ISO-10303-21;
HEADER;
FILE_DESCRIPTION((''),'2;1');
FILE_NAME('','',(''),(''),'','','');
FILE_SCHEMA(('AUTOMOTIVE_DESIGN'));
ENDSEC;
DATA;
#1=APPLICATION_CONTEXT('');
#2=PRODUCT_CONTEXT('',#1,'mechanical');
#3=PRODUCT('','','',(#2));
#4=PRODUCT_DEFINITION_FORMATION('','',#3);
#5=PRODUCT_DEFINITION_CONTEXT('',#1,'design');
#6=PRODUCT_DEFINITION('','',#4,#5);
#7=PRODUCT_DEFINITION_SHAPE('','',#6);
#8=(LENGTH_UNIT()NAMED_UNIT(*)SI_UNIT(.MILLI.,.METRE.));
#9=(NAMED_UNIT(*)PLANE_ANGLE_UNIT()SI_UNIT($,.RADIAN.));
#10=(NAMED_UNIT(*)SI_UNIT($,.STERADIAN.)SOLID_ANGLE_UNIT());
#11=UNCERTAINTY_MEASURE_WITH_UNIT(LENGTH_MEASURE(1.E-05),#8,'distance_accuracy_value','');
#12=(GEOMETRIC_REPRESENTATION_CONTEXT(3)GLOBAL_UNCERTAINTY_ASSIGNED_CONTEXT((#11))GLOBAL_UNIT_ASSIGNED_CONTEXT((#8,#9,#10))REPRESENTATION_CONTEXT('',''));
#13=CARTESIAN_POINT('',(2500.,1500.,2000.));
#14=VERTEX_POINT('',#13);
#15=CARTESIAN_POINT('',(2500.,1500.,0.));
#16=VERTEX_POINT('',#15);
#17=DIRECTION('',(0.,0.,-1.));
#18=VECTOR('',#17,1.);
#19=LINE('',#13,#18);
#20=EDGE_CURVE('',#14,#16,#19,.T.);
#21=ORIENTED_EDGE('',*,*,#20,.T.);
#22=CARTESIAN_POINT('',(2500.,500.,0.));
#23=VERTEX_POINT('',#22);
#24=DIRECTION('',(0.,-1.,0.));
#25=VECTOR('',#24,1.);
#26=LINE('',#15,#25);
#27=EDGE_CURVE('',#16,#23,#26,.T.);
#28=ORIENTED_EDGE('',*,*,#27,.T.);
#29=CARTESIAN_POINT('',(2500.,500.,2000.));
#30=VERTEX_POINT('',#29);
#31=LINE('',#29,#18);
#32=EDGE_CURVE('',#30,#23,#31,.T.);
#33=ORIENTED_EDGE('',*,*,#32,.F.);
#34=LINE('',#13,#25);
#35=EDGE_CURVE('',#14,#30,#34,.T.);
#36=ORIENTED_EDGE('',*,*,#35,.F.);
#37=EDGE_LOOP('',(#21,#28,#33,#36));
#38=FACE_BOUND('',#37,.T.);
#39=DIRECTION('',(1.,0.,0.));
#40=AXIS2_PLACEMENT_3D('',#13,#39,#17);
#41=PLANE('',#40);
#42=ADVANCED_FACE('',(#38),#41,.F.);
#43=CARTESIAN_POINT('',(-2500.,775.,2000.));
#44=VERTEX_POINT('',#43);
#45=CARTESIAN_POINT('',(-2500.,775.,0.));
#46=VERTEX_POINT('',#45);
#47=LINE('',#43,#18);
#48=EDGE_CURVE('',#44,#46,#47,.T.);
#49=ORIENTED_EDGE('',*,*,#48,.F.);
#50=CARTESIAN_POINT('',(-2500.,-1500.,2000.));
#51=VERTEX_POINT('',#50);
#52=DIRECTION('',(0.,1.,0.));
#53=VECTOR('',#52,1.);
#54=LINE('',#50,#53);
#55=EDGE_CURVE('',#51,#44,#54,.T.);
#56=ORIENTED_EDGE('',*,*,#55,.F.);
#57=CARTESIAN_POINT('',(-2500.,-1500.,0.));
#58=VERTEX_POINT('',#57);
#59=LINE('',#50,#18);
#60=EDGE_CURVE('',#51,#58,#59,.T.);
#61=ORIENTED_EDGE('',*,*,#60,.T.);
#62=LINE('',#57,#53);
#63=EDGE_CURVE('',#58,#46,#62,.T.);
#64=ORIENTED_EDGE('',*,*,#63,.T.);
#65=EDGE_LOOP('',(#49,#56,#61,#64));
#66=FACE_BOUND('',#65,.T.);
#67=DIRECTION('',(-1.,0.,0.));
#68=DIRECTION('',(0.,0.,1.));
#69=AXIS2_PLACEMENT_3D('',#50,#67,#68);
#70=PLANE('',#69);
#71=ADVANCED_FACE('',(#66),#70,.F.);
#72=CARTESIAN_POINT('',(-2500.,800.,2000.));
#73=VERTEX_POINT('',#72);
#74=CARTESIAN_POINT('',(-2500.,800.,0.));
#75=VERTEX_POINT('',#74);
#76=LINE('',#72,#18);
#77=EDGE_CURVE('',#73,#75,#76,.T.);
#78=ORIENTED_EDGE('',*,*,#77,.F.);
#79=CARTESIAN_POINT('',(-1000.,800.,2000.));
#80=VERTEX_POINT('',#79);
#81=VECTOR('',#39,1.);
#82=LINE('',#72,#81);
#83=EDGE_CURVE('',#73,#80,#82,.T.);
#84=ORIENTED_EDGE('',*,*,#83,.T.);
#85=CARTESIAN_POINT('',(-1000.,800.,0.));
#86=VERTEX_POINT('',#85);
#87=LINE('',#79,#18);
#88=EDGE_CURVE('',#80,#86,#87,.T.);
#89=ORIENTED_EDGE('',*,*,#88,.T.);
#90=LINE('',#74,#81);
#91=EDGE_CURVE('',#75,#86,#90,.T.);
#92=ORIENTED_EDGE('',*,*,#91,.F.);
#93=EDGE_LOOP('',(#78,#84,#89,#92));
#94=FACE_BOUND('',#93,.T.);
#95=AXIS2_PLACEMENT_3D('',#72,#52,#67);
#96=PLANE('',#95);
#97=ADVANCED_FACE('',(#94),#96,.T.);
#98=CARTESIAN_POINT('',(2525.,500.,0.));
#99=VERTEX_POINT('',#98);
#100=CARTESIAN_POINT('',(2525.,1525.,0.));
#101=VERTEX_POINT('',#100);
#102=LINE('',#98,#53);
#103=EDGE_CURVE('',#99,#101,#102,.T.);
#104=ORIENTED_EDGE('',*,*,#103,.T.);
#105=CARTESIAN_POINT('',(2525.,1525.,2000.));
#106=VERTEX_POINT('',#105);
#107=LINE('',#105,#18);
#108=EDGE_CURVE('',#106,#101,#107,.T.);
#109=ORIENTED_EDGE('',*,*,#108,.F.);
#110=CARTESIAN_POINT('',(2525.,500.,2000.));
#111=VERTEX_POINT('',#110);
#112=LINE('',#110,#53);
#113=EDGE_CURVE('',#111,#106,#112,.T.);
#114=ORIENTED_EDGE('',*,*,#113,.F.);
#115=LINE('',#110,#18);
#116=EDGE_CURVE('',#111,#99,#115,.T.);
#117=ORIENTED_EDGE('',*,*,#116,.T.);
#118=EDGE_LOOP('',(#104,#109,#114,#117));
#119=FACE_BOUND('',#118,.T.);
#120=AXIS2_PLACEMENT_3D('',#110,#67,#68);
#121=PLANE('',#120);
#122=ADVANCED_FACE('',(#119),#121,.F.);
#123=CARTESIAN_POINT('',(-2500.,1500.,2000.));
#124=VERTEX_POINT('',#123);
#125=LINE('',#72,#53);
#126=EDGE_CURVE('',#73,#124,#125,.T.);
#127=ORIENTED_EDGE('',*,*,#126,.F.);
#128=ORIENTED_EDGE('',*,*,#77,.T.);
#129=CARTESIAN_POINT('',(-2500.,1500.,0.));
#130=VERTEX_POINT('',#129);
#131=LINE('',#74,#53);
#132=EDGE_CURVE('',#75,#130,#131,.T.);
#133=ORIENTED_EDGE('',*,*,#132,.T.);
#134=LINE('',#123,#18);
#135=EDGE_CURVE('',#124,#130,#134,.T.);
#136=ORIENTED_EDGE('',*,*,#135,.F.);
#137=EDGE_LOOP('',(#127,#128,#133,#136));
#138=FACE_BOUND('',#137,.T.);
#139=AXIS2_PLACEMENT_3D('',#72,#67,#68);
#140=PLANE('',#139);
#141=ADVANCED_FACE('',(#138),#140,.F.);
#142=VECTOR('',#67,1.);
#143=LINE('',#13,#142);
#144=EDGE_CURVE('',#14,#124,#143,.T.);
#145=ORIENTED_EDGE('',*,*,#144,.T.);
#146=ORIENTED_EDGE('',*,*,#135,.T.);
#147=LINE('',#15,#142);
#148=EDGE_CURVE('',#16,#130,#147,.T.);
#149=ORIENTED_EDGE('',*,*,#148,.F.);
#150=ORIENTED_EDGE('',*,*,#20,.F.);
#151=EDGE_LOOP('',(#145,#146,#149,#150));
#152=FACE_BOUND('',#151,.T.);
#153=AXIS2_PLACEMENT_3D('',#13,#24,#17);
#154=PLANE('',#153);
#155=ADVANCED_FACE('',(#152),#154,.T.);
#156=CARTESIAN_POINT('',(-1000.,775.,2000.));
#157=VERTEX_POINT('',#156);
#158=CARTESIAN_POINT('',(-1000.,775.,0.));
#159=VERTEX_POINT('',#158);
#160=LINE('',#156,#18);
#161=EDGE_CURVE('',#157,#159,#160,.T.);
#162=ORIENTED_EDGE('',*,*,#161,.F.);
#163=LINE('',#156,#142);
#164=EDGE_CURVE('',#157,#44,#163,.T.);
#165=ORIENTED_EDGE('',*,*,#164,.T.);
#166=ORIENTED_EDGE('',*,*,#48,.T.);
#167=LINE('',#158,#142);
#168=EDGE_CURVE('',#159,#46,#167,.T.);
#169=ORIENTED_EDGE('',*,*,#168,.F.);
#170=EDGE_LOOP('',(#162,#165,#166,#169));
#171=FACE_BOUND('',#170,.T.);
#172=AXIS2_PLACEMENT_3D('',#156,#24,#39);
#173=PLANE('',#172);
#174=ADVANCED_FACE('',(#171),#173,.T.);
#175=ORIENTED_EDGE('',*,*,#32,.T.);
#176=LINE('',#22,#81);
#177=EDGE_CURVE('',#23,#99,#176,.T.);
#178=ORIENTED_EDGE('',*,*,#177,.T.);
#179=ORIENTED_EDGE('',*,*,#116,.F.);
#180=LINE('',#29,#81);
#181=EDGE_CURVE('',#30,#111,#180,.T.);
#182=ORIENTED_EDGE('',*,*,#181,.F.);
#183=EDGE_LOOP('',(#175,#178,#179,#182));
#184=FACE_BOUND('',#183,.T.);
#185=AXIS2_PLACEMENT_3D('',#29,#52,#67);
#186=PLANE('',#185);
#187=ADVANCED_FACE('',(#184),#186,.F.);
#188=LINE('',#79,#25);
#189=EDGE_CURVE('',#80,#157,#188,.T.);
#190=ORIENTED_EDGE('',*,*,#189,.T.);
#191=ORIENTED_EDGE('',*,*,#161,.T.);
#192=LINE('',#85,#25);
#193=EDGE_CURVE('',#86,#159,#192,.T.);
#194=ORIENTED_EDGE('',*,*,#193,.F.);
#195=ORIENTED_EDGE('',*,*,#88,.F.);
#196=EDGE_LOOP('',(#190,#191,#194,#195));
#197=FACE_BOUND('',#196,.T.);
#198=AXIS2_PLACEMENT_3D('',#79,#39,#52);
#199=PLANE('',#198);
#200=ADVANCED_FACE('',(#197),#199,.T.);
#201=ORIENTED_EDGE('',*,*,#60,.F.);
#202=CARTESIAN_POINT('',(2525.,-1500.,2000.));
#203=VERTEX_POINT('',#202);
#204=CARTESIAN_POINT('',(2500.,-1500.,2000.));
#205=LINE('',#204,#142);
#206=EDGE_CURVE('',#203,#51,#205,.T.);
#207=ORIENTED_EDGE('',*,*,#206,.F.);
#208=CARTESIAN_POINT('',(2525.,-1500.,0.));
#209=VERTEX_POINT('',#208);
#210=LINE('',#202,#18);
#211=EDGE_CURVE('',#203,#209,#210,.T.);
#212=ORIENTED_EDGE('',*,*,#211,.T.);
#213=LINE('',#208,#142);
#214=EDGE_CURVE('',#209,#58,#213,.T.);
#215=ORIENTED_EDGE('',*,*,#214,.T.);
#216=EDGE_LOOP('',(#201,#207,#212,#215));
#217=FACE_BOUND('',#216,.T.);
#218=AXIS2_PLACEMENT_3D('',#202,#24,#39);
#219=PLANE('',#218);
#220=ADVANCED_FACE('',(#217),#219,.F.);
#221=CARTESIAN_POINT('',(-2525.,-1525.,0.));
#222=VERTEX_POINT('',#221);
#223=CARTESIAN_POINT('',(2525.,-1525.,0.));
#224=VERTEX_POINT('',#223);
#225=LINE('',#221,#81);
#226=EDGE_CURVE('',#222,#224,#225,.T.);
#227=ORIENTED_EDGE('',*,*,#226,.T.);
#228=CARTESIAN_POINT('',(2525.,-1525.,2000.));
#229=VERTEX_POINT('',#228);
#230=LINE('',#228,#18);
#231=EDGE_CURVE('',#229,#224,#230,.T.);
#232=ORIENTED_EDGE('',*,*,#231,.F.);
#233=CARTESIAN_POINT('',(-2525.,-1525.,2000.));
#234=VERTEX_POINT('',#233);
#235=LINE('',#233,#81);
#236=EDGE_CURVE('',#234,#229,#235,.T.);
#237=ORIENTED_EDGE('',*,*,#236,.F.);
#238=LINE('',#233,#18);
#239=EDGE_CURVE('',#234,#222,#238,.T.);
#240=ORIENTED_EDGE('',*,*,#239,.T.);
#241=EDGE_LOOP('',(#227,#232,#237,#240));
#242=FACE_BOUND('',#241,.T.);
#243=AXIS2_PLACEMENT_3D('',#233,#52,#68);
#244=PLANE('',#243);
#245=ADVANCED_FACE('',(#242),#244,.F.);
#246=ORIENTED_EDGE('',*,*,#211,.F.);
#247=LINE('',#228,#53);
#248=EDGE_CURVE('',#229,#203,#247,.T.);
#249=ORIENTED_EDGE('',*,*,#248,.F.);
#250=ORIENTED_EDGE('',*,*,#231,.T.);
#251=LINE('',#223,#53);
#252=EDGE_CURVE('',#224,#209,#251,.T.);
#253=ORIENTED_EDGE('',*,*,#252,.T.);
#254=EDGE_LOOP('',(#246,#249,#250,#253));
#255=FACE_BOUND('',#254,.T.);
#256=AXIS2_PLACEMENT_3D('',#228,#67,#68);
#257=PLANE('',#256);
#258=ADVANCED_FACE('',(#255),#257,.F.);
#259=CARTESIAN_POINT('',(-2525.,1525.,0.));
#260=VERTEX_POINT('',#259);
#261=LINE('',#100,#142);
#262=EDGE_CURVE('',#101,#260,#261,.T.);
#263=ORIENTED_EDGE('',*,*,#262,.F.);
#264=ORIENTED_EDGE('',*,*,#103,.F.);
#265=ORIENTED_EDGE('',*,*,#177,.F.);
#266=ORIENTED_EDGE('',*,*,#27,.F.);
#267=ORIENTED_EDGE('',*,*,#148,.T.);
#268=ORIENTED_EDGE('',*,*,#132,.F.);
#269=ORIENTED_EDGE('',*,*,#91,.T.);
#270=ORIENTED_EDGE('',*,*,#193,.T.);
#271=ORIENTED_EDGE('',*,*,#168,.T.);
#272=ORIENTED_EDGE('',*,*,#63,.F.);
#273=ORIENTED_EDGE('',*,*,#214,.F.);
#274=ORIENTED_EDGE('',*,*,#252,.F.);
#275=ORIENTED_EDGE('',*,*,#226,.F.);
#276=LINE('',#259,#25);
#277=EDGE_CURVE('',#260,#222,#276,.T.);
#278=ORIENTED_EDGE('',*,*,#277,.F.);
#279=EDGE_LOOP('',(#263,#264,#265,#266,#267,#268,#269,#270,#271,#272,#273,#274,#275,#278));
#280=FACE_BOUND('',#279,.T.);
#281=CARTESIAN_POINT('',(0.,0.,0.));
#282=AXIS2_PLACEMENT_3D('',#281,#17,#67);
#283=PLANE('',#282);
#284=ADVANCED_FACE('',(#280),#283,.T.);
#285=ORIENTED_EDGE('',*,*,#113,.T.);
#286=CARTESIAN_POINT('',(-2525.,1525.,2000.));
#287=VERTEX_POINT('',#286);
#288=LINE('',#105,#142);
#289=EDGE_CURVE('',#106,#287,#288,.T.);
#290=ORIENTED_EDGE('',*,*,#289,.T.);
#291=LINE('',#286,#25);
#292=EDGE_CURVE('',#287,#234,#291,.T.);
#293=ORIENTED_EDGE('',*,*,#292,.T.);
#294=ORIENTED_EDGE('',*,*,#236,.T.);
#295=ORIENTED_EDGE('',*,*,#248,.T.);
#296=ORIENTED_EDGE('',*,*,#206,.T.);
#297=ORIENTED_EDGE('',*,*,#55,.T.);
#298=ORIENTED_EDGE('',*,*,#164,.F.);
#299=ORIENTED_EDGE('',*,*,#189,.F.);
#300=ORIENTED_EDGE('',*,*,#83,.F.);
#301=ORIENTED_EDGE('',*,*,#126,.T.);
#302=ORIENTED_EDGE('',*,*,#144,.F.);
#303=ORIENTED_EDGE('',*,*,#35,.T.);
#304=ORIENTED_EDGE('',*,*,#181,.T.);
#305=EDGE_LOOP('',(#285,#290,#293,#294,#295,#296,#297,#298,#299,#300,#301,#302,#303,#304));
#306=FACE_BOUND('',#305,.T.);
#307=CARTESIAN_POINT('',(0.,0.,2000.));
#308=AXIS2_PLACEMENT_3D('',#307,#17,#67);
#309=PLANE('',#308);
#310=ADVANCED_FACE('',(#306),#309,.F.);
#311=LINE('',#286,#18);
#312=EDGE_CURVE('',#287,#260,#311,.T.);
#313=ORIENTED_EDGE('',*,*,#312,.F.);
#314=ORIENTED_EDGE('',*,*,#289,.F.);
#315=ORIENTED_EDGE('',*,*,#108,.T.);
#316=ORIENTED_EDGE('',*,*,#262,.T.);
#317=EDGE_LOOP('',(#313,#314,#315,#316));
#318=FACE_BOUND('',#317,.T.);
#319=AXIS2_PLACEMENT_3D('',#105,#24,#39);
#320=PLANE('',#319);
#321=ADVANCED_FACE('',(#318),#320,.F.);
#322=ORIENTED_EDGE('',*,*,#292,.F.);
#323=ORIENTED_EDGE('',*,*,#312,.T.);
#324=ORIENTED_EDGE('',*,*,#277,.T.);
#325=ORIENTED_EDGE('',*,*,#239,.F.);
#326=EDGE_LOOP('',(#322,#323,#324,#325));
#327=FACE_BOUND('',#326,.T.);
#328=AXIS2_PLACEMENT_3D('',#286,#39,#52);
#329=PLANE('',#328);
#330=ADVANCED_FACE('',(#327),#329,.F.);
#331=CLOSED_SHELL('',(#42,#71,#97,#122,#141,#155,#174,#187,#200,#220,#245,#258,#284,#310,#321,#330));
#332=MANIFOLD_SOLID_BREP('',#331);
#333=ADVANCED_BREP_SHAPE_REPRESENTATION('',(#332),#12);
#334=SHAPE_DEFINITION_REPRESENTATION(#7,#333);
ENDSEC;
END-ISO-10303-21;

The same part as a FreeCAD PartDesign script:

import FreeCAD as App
import Part
import Sketcher

doc = App.newDocument("Part")
body = doc.addObject("PartDesign::Body", "Body")

# Sketch on XY plane
sketch1 = doc.addObject("Sketcher::SketchObject", "Sketch")
body.addObject(sketch1)
sketch1.AttachmentSupport = (doc.XY_Plane, [""])
sketch1.MapMode = "FlatFace"
sketch1.addGeometry([
    Part.LineSegment(App.Vector(-1000, 800, 0), App.Vector(-2500, 800, 0)),  # 0
    Part.LineSegment(App.Vector(-2500, 800, 0), App.Vector(-2500, 1500, 0)),  # 1
    Part.LineSegment(App.Vector(-2500, 1500, 0), App.Vector(2500, 1500, 0)),  # 2
    Part.LineSegment(App.Vector(2500, 1500, 0), App.Vector(2500, 500, 0)),  # 3
    Part.LineSegment(App.Vector(2500, 500, 0), App.Vector(2525, 500, 0)),  # 4
    Part.LineSegment(App.Vector(2525, 500, 0), App.Vector(2525, 1525, 0)),  # 5
    Part.LineSegment(App.Vector(2525, 1525, 0), App.Vector(-2525, 1525, 0)),  # 6
    Part.LineSegment(App.Vector(-2525, 1525, 0), App.Vector(-2525, -1525, 0)),  # 7
    Part.LineSegment(App.Vector(-2525, -1525, 0), App.Vector(2525, -1525, 0)),  # 8
    Part.LineSegment(App.Vector(2525, -1525, 0), App.Vector(2525, -1500, 0)),  # 9
    Part.LineSegment(App.Vector(2525, -1500, 0), App.Vector(-2500, -1500, 0)),  # 10
    Part.LineSegment(App.Vector(-2500, -1500, 0), App.Vector(-2500, 775, 0)),  # 11
    Part.LineSegment(App.Vector(-2500, 775, 0), App.Vector(-1000, 775, 0)),  # 12
    Part.LineSegment(App.Vector(-1000, 775, 0), App.Vector(-1000, 800, 0)),  # 13
], False)
sketch1.addConstraint([
    Sketcher.Constraint("Coincident", 0, 2, 1, 1),
    Sketcher.Constraint("Coincident", 1, 2, 2, 1),
    Sketcher.Constraint("Coincident", 2, 2, 3, 1),
    Sketcher.Constraint("Coincident", 3, 2, 4, 1),
    Sketcher.Constraint("Coincident", 4, 2, 5, 1),
    Sketcher.Constraint("Coincident", 5, 2, 6, 1),
    Sketcher.Constraint("Coincident", 6, 2, 7, 1),
    Sketcher.Constraint("Coincident", 7, 2, 8, 1),
    Sketcher.Constraint("Coincident", 8, 2, 9, 1),
    Sketcher.Constraint("Coincident", 9, 2, 10, 1),
    Sketcher.Constraint("Coincident", 10, 2, 11, 1),
    Sketcher.Constraint("Coincident", 11, 2, 12, 1),
    Sketcher.Constraint("Coincident", 12, 2, 13, 1),
    Sketcher.Constraint("Coincident", 13, 2, 0, 1),
    Sketcher.Constraint("Horizontal", 0),
    Sketcher.Constraint("Vertical", 1),
    Sketcher.Constraint("Horizontal", 2),
    Sketcher.Constraint("Vertical", 3),
    Sketcher.Constraint("Horizontal", 4),
    Sketcher.Constraint("Vertical", 5),
    Sketcher.Constraint("Horizontal", 6),
    Sketcher.Constraint("Vertical", 7),
    Sketcher.Constraint("Horizontal", 8),
    Sketcher.Constraint("Vertical", 9),
    Sketcher.Constraint("Horizontal", 10),
    Sketcher.Constraint("Vertical", 11),
    Sketcher.Constraint("Horizontal", 12),
    Sketcher.Constraint("Vertical", 13),
    Sketcher.Constraint("Symmetric", 5, 2, 7, 2, -1, 1),
    Sketcher.Constraint("Symmetric", 2, 2, 10, 2, -1, 1),
    Sketcher.Constraint("Vertical", 5, 2, 8, 2),
    Sketcher.Constraint("Vertical", 1, 2, 10, 2),
    Sketcher.Constraint("Equal", 4, 9),
    Sketcher.Constraint("Equal", 9, 13),
    Sketcher.Constraint("DistanceX", 0, 2, 0, 1, 1500.0),
    Sketcher.Constraint("DistanceX", 2, 1, 2, 2, 5000.0),
    Sketcher.Constraint("DistanceX", 4, 1, 4, 2, 25.0),
    Sketcher.Constraint("DistanceY", 1, 1, 1, 2, 700.0),
    Sketcher.Constraint("DistanceY", 3, 2, 3, 1, 1000.0),
    Sketcher.Constraint("DistanceY", 7, 2, 7, 1, 3050.0),
])
pad1 = doc.addObject("PartDesign::Pad", "Pad")
body.addObject(pad1)
pad1.Profile = sketch1
pad1.Length = 2000

doc.recompute()
